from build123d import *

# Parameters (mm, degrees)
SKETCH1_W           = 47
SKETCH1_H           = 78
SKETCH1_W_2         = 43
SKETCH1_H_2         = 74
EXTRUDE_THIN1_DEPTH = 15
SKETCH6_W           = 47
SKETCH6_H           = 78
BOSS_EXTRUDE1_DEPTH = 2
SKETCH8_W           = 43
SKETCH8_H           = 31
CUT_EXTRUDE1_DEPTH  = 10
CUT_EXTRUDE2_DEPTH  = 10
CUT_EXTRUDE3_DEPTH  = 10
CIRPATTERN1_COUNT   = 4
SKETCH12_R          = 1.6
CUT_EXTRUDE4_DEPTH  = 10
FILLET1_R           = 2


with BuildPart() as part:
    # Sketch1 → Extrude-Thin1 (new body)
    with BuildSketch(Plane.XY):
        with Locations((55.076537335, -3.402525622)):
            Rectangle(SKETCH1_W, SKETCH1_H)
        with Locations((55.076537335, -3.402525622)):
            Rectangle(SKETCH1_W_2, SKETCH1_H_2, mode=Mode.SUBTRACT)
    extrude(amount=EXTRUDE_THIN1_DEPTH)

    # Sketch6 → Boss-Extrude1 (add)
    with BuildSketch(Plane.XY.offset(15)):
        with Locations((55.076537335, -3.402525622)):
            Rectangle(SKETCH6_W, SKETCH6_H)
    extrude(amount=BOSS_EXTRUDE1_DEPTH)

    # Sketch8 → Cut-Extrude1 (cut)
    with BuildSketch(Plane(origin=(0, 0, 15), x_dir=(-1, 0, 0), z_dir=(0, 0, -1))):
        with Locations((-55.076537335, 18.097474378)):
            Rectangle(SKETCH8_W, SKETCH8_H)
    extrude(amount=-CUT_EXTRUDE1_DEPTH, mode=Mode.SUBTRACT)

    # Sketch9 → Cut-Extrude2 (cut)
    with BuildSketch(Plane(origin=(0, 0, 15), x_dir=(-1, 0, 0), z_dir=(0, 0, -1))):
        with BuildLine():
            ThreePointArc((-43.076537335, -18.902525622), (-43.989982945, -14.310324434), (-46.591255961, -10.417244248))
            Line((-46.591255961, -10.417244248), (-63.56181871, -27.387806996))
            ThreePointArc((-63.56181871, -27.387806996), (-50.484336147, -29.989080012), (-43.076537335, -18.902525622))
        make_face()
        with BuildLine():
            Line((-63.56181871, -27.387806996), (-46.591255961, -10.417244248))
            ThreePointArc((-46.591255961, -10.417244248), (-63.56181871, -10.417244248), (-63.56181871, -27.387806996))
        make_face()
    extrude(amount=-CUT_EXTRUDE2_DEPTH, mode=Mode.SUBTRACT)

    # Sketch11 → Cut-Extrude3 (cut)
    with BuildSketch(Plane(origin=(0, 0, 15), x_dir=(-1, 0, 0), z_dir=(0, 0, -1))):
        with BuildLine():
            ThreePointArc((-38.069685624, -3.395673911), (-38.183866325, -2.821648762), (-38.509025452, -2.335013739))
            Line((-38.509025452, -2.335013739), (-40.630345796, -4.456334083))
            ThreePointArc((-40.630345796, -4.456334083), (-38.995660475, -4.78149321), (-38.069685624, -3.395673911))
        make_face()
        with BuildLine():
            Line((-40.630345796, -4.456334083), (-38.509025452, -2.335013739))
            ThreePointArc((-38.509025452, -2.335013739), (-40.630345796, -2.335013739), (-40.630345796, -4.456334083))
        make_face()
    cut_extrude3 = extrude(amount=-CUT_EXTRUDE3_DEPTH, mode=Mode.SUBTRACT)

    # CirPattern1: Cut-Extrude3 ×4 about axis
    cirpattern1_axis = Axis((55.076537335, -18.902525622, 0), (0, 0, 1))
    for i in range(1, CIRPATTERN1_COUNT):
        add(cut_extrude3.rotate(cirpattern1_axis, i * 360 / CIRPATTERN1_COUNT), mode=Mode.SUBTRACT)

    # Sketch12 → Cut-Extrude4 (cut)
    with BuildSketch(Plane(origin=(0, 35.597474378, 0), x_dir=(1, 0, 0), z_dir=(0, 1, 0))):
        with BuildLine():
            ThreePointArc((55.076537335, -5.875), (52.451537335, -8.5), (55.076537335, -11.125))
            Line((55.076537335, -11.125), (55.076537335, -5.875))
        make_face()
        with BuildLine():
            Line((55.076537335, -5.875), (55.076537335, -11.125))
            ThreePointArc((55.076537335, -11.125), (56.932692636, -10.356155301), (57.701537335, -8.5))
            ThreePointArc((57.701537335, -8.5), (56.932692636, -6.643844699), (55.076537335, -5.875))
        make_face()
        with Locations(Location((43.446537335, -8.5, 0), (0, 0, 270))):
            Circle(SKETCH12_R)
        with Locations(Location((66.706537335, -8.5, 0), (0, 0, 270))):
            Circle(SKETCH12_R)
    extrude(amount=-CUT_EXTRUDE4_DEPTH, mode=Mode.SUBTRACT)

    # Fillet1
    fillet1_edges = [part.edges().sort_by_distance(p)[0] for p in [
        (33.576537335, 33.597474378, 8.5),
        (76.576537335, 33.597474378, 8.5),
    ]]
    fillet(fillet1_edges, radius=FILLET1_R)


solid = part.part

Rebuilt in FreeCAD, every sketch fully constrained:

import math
import FreeCAD as App
import Part
import Sketcher
from FreeCAD import Vector
Q = App.Units.Quantity


def edges_at(feature, points):
    """Names of the edges that pass closest to the given points."""
    edges = feature.Shape.Edges
    near = lambda p: min(range(len(edges)), key=lambda i: edges[i].distToShape(Part.Vertex(*p))[0])
    return sorted({f"Edge{near(p) + 1}" for p in points})


def add_polygon(sketch, points):
    """Adds a closed chain of lines whose ends are joined by coincident constraints."""
    first, n = sketch.GeometryCount, len(points)
    for a, b in zip(points, points[1:] + points[:1]):
        sketch.addGeometry(Part.LineSegment(App.Vector(*a, 0), App.Vector(*b, 0)), False)
    for i in range(n):
        sketch.addConstraint(Sketcher.Constraint("Coincident", first + i, 2, first + (i + 1) % n, 1))

doc = App.newDocument("Part")
body = doc.addObject("PartDesign::Body", "Body")

# Sketch on XY plane
sketch1 = body.newObject("Sketcher::SketchObject", "Sketch")
sketch1.AttachmentSupport = (doc.getObject("XY_Plane"), [""])
sketch1.MapMode = "FlatFace"
add_polygon(sketch1, [(32, 36), (32, -42), (79, -42), (79, 36)])  # lines 0-3
add_polygon(sketch1, [(77, -40), (34, -40), (34, 34), (77, 34)])  # lines 4-7
sketch1.addConstraint([
    Sketcher.Constraint("Vertical", 0),
    Sketcher.Constraint("Horizontal", 1),
    Sketcher.Constraint("Vertical", 2),
    Sketcher.Constraint("Horizontal", 3),
    Sketcher.Constraint("Horizontal", 4),
    Sketcher.Constraint("Vertical", 5),
    Sketcher.Constraint("Horizontal", 6),
    Sketcher.Constraint("Vertical", 7),
    Sketcher.Constraint("DistanceX", 1, 1, 1, 2, Q("47 mm")),
    Sketcher.Constraint("DistanceX", 4, 2, 4, 1, Q("43 mm")),
    Sketcher.Constraint("DistanceY", 0, 2, 0, 1, Q("78 mm")),
    Sketcher.Constraint("DistanceY", 5, 1, 5, 2, Q("74 mm")),
    Sketcher.Constraint("DistanceX", 0, 2, 4, 2, Q("2 mm")),
    Sketcher.Constraint("DistanceY", 0, 2, 4, 2, Q("2 mm")),
    Sketcher.Constraint("DistanceX", -1, 1, 0, 2, Q("31.576537 mm")),
    Sketcher.Constraint("DistanceY", 0, 2, -1, 1, Q("42.402526 mm")),
])
pad1 = body.newObject("PartDesign::Pad", "Pad")
pad1.Profile = sketch1
pad1.Length = 15

# Sketch on XY plane
sketch2 = body.newObject("Sketcher::SketchObject", "Sketch001")
sketch2.AttachmentSupport = (doc.getObject("XY_Plane"), [""])
sketch2.MapMode = "FlatFace"
sketch2.AttachmentOffset = App.Placement(Vector(0, 0, 15), App.Rotation())
add_polygon(sketch2, [(32, 36), (32, -42), (79, -42), (79, 36)])  # lines 0-3
sketch2.addConstraint([
    Sketcher.Constraint("Vertical", 0),
    Sketcher.Constraint("Horizontal", 1),
    Sketcher.Constraint("Vertical", 2),
    Sketcher.Constraint("Horizontal", 3),
    Sketcher.Constraint("DistanceX", 1, 1, 1, 2, Q("47 mm")),
    Sketcher.Constraint("DistanceY", 0, 2, 0, 1, Q("78 mm")),
    Sketcher.Constraint("DistanceX", -1, 1, 0, 2, Q("31.576537 mm")),
    Sketcher.Constraint("DistanceY", 0, 2, -1, 1, Q("42.402526 mm")),
])
pad2 = body.newObject("PartDesign::Pad", "Pad001")
pad2.Profile = sketch2
pad2.Length = 2

# Sketch on XY plane
sketch3 = body.newObject("Sketcher::SketchObject", "Sketch002")
sketch3.AttachmentSupport = (doc.getObject("XY_Plane"), [""])
sketch3.MapMode = "FlatFace"
sketch3.AttachmentOffset = App.Placement(Vector(0, 0, 15), App.Rotation())
add_polygon(sketch3, [(77, 34), (77, 3), (34, 3), (34, 34)])  # lines 0-3
sketch3.addConstraint([
    Sketcher.Constraint("Vertical", 0),
    Sketcher.Constraint("Horizontal", 1),
    Sketcher.Constraint("Vertical", 2),
    Sketcher.Constraint("Horizontal", 3),
    Sketcher.Constraint("DistanceX", 1, 2, 1, 1, Q("43 mm")),
    Sketcher.Constraint("DistanceY", 0, 2, 0, 1, Q("31 mm")),
    Sketcher.Constraint("DistanceX", -1, 1, 0, 2, Q("76.576537 mm")),
    Sketcher.Constraint("DistanceY", -1, 1, 0, 2, Q("2.597474 mm")),
])
pocket1 = body.newObject("PartDesign::Pocket", "Pocket")
pocket1.Profile = sketch3
pocket1.Length = 10
pocket1.Reversed = True

# Sketch on XY plane
sketch4 = body.newObject("Sketcher::SketchObject", "Sketch003")
sketch4.AttachmentSupport = (doc.getObject("XY_Plane"), [""])
sketch4.MapMode = "FlatFace"
sketch4.AttachmentOffset = App.Placement(Vector(0, 0, 15), App.Rotation())
sketch4.addGeometry([
    Part.ArcOfCircle(Part.Circle(Vector(55, -19, 0), Vector(0, 0, 1), 12), math.radians(135), math.radians(180)),
    Part.ArcOfCircle(Part.Circle(Vector(55, -19, 0), Vector(0, 0, 1), 12), math.radians(-45), math.radians(135)),
    Part.ArcOfCircle(Part.Circle(Vector(55, -19, 0), Vector(0, 0, 1), 12), math.radians(-180), math.radians(-45)),
], False)
sketch4.addConstraint([
    Sketcher.Constraint("Tangent", 0, 1, 1, 2),
    Sketcher.Constraint("Tangent", 1, 1, 2, 2),
    Sketcher.Constraint("Tangent", 2, 1, 0, 2),
    Sketcher.Constraint("Horizontal", 1, 3, 2, 1),
    Sketcher.Constraint("Radius", 0, Q("12 mm")),
    Sketcher.Constraint("DistanceX", -1, 1, 1, 1, Q("63.561819 mm")),
    Sketcher.Constraint("DistanceX", 0, 1, 2, 3, Q("8.485281 mm")),
    Sketcher.Constraint("DistanceX", 0, 3, 1, 1, Q("8.485281 mm")),
    Sketcher.Constraint("DistanceY", 0, 3, -1, 1, Q("18.902526 mm")),
])
pocket2 = body.newObject("PartDesign::Pocket", "Pocket001")
pocket2.Profile = sketch4
pocket2.Length = 10
pocket2.Reversed = True

# Sketch on XY plane
sketch5 = body.newObject("Sketcher::SketchObject", "Sketch004")
sketch5.AttachmentSupport = (doc.getObject("XY_Plane"), [""])
sketch5.MapMode = "FlatFace"
sketch5.AttachmentOffset = App.Placement(Vector(0, 0, 15), App.Rotation())
sketch5.addGeometry([
    Part.ArcOfCircle(Part.Circle(Vector(39.6, -3.4, 0), Vector(0, 0, 1), 1.5), math.radians(135), math.radians(180)),
    Part.ArcOfCircle(Part.Circle(Vector(39.6, -3.4, 0), Vector(0, 0, 1), 1.5), math.radians(-45), math.radians(135)),
    Part.ArcOfCircle(Part.Circle(Vector(39.6, -3.4, 0), Vector(0, 0, 1), 1.5), math.radians(180), math.radians(315)),
], False)
sketch5.addConstraint([
    Sketcher.Constraint("Tangent", 0, 1, 1, 2),
    Sketcher.Constraint("Tangent", 1, 1, 2, 2),
    Sketcher.Constraint("Tangent", 2, 1, 0, 2),
    Sketcher.Constraint("Horizontal", 1, 3, 2, 1),
    Sketcher.Constraint("Radius", 0, Q("1.5 mm")),
    Sketcher.Constraint("DistanceX", 0, 1, 0, 3, Q("1.06066 mm")),
    Sketcher.Constraint("DistanceX", 1, 3, 1, 1, Q("1.06066 mm")),
    Sketcher.Constraint("DistanceX", -1, 1, 0, 3, Q("39.569686 mm")),
    Sketcher.Constraint("DistanceY", 0, 3, -1, 1, Q("3.395674 mm")),
])
pocket3 = body.newObject("PartDesign::Pocket", "Pocket002")
pocket3.Profile = sketch5
pocket3.Length = 10
pocket3.Reversed = True
doc.recompute()

datumline = body.newObject("PartDesign::Line", "DatumLine")
datumline.Placement = App.Placement(Vector(55.076537, -18.902526, 0), App.Rotation(Vector(0, 0, 1), Vector(0, 0, 1)))
polarpattern = body.newObject("PartDesign::PolarPattern", "PolarPattern")
polarpattern.Originals = [pocket3]
polarpattern.Axis = (datumline, [""])
polarpattern.Angle = 360
polarpattern.Occurrences = 4
body.Tip = polarpattern

# Sketch on XZ plane
sketch6 = body.newObject("Sketcher::SketchObject", "Sketch005")
sketch6.AttachmentSupport = (doc.getObject("XZ_Plane"), [""])
sketch6.MapMode = "FlatFace"
sketch6.AttachmentOffset = App.Placement(Vector(0, 0, -35.597474), App.Rotation())
sketch6.addGeometry([
    Part.ArcOfCircle(Part.Circle(Vector(55.1, 8.5, 0), Vector(0, 0, 1), 2.6), math.radians(90), math.radians(270)),  # 0
    Part.ArcOfCircle(Part.Circle(Vector(55.1, 8.5, 0), Vector(0, 0, 1), 2.6), math.radians(0), math.radians(90)),  # 1
    Part.ArcOfCircle(Part.Circle(Vector(55.1, 8.5, 0), Vector(0, 0, 1), 2.6), math.radians(-90), math.radians(0)),  # 2
    Part.Circle(Vector(43.4, 8.5, 0), Vector(0, 0, 1), 1.6),  # 3
    Part.Circle(Vector(66.7, 8.5, 0), Vector(0, 0, 1), 1.6),  # 4
], False)
sketch6.addConstraint([
    Sketcher.Constraint("Tangent", 0, 1, 1, 2),
    Sketcher.Constraint("Tangent", 1, 1, 2, 2),
    Sketcher.Constraint("Tangent", 2, 1, 0, 2),
    Sketcher.Constraint("Equal", 3, 4),
    Sketcher.Constraint("Horizontal", 2, 3, 3, 3),
    Sketcher.Constraint("Horizontal", 3, 3, 4, 3),
    Sketcher.Constraint("Horizontal", 4, 3, 1, 1),
    Sketcher.Constraint("Vertical", 2, 3, 0, 1),
    Sketcher.Constraint("Vertical", 0, 1, 2, 1),
    Sketcher.Constraint("Diameter", 3, Q("3.2 mm")),
    Sketcher.Constraint("Radius", 0, Q("2.625 mm")),
    Sketcher.Constraint("DistanceY", -1, 1, 0, 3, Q("8.5 mm")),
    Sketcher.Constraint("DistanceX", 3, 3, 0, 3, Q("11.63 mm")),
    Sketcher.Constraint("DistanceX", 1, 3, 4, 3, Q("11.63 mm")),
    Sketcher.Constraint("DistanceX", -1, 1, 0, 3, Q("55.076537 mm")),
])
pocket4 = body.newObject("PartDesign::Pocket", "Pocket003")
pocket4.Profile = sketch6
pocket4.Length = 10
pocket4.Reversed = True
doc.recompute()

fillet = body.newObject("PartDesign::Fillet", "Fillet")
fillet.Base = (pocket4, edges_at(pocket4, [(33.577, 33.597, 8.5), (76.577, 33.597, 8.5)]))
fillet.Radius = 2

doc.recompute()
